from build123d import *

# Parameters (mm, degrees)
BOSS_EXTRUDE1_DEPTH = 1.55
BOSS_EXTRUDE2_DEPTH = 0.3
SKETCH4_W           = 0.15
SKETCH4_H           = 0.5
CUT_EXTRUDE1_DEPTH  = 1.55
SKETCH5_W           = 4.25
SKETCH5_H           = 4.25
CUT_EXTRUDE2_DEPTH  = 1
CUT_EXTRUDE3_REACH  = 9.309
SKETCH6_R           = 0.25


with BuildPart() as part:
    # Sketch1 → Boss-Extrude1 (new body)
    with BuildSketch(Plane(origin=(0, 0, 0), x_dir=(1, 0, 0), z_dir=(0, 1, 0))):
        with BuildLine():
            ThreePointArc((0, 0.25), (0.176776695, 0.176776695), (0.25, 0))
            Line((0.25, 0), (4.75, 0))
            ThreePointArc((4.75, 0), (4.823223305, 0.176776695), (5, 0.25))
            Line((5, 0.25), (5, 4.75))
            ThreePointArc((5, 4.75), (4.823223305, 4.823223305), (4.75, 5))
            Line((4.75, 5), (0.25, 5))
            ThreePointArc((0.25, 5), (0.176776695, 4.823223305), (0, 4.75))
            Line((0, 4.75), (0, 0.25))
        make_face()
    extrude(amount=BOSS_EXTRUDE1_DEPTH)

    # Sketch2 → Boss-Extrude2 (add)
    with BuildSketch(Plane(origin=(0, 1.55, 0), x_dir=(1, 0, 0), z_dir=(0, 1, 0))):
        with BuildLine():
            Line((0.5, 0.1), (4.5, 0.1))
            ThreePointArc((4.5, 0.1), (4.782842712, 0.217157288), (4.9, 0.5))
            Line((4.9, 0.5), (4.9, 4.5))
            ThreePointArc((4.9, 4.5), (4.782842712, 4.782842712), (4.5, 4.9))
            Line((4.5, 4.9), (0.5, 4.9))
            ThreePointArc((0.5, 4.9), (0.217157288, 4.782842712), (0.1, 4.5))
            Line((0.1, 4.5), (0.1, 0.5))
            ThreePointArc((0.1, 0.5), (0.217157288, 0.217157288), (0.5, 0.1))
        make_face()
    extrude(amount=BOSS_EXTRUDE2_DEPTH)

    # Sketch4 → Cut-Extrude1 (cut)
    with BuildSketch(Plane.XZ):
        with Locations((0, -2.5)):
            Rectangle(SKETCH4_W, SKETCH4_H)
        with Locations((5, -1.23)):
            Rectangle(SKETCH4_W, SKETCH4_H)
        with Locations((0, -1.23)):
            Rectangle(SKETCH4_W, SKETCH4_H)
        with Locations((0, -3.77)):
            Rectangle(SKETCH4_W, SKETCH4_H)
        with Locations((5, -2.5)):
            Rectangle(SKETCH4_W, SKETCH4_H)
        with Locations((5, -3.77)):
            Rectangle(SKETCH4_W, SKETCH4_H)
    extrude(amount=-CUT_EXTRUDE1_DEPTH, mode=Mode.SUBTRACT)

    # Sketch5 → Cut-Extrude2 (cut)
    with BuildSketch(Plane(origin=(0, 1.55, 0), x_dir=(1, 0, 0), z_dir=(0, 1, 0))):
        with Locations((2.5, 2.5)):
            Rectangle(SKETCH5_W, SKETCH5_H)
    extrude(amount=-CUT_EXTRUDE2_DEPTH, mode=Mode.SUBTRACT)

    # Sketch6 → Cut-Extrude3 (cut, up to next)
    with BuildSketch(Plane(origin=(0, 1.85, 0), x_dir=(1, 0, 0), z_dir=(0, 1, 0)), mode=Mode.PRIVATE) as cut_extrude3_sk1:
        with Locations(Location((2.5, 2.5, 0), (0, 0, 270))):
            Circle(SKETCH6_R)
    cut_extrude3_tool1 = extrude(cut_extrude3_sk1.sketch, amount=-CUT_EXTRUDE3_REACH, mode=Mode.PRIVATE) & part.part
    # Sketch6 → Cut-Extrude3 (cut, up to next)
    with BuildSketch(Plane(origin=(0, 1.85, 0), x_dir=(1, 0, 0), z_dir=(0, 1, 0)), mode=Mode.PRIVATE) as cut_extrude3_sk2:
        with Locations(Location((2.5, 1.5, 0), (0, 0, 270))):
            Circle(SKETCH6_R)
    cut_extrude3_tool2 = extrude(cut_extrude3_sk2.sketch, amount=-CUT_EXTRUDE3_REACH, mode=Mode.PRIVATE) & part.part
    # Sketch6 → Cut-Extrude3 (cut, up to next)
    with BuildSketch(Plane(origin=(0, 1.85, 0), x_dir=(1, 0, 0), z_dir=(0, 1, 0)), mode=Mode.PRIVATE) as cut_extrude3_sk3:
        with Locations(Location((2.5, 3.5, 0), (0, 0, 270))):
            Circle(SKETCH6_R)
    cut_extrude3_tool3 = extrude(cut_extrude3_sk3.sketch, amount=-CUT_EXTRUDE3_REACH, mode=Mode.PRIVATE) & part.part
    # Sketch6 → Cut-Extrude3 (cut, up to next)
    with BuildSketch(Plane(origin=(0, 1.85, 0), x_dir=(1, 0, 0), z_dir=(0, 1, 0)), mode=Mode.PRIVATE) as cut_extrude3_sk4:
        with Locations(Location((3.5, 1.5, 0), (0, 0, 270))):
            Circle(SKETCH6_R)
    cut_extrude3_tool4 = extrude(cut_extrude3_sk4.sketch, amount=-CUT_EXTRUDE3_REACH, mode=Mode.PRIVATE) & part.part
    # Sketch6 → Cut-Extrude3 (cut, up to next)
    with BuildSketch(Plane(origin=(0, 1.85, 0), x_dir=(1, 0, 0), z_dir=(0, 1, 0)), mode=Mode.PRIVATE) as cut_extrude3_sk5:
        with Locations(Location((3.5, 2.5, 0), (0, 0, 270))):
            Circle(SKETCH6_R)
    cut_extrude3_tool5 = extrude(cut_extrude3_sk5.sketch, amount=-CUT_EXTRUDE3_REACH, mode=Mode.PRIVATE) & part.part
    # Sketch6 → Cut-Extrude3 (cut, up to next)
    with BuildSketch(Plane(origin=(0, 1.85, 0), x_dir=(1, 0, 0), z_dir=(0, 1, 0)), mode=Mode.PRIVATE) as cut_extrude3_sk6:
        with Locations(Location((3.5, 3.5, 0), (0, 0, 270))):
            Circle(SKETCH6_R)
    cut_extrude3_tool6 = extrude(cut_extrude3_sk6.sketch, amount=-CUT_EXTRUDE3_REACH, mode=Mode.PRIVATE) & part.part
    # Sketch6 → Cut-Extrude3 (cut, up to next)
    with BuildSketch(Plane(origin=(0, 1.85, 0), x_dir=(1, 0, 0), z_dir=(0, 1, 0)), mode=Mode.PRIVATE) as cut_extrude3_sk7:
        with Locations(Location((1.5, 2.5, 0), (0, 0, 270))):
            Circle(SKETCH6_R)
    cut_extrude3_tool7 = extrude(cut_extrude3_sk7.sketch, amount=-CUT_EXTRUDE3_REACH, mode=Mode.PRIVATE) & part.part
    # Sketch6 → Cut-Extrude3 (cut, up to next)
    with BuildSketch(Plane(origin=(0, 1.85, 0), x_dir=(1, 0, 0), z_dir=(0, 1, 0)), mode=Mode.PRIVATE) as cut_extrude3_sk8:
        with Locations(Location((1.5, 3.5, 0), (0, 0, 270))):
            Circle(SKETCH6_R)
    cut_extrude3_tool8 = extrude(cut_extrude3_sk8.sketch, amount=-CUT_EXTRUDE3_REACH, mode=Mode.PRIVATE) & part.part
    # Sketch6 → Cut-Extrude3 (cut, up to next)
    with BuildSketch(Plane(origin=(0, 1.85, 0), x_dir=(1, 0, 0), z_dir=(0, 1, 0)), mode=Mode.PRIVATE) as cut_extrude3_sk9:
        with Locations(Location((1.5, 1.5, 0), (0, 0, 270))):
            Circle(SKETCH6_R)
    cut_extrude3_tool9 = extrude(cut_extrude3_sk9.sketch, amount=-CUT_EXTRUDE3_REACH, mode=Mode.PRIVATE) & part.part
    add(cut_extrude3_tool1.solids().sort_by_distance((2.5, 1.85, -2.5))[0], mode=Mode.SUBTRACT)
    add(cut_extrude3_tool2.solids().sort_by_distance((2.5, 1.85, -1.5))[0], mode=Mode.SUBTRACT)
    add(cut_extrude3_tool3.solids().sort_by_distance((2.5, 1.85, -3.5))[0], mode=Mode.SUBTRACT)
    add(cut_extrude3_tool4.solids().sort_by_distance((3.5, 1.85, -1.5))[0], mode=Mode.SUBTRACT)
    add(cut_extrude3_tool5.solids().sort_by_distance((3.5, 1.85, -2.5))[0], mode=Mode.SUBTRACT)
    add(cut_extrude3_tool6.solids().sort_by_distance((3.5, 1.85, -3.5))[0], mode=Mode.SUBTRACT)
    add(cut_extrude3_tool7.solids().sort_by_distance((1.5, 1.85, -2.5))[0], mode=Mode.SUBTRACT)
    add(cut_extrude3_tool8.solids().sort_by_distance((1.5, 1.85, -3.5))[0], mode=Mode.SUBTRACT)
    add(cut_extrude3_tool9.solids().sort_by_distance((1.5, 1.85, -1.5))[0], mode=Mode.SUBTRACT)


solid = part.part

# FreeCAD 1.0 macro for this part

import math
import FreeCAD as App
import Part
import Sketcher
Q = App.Units.Quantity

doc = App.newDocument("Part")
body = doc.addObject("PartDesign::Body", "Body")

sketch1 = doc.addObject("Sketcher::SketchObject", "Sketch")
body.addObject(sketch1)
sketch1.AttachmentSupport = (doc.XZ_Plane, [""])
sketch1.MapMode = "FlatFace"
sketch1.addGeometry([
    Part.ArcOfCircle(Part.Circle(App.Vector(0, 0, 0), App.Vector(0, 0, 1), 0.25), math.radians(-90), math.radians(0)),
    Part.LineSegment(App.Vector(0.25, 0, 0), App.Vector(4.75, 0, 0)),
    Part.ArcOfCircle(Part.Circle(App.Vector(5, 0, 0), App.Vector(0, 0, 1), 0.25), math.radians(-180), math.radians(-90)),
    Part.LineSegment(App.Vector(5, -0.25, 0), App.Vector(5, -4.75, 0)),
    Part.ArcOfCircle(Part.Circle(App.Vector(5, -5, 0), App.Vector(0, 0, 1), 0.25), math.radians(90), math.radians(180)),
    Part.LineSegment(App.Vector(4.75, -5, 0), App.Vector(0.25, -5, 0)),
    Part.ArcOfCircle(Part.Circle(App.Vector(0, -5, 0), App.Vector(0, 0, 1), 0.25), math.radians(0), math.radians(90)),
    Part.LineSegment(App.Vector(0, -4.75, 0), App.Vector(0, -0.25, 0)),
], False)
sketch1.addConstraint([
    Sketcher.Constraint("Coincident", 0, 2, 1, 1),
    Sketcher.Constraint("Coincident", 1, 2, 2, 1),
    Sketcher.Constraint("Coincident", 2, 2, 3, 1),
    Sketcher.Constraint("Coincident", 3, 2, 4, 1),
    Sketcher.Constraint("Coincident", 4, 2, 5, 1),
    Sketcher.Constraint("Coincident", 5, 2, 6, 1),
    Sketcher.Constraint("Coincident", 6, 2, 7, 1),
    Sketcher.Constraint("Coincident", 7, 2, 0, 1),
    Sketcher.Constraint("Horizontal", 1),
    Sketcher.Constraint("Vertical", 3),
    Sketcher.Constraint("Horizontal", 5),
    Sketcher.Constraint("Vertical", 7),
    Sketcher.Constraint("Coincident", 0, 3, -1, 1),
    Sketcher.Constraint("Equal", 0, 2),
    Sketcher.Constraint("Equal", 2, 4),
    Sketcher.Constraint("Equal", 4, 6),
    Sketcher.Constraint("PointOnObject", 2, 3, -1),
    Sketcher.Constraint("PointOnObject", 6, 3, -2),
    Sketcher.Constraint("PointOnObject", 0, 2, -1),
    Sketcher.Constraint("PointOnObject", 6, 2, -2),
    Sketcher.Constraint("Horizontal", 4, 3, 6, 3),
    Sketcher.Constraint("Horizontal", 6, 3, 4, 2),
    Sketcher.Constraint("Vertical", 2, 3, 4, 3),
    Sketcher.Constraint("Vertical", 4, 3, 2, 2),
    Sketcher.Constraint("Equal", 5, 3),
    Sketcher.Constraint("Radius", 0, Q("0.25 mm")),
    Sketcher.Constraint("DistanceX", 1, 1, 1, 2, Q("4.5 mm")),
])
pad1 = doc.addObject("PartDesign::Pad", "Pad")
body.addObject(pad1)
pad1.Profile = sketch1
pad1.Length = 1.55
pad1.Reversed = True

sketch2 = doc.addObject("Sketcher::SketchObject", "Sketch001")
body.addObject(sketch2)
sketch2.AttachmentSupport = (doc.XZ_Plane, [""])
sketch2.MapMode = "FlatFace"
sketch2.AttachmentOffset = App.Placement(App.Vector(0, 0, -1.55), App.Rotation())
sketch2.addGeometry([
    Part.LineSegment(App.Vector(0.5, -0.1, 0), App.Vector(4.5, -0.1, 0)),
    Part.ArcOfCircle(Part.Circle(App.Vector(4.5, -0.5, 0), App.Vector(0, 0, 1), 0.4), math.radians(0), math.radians(90)),
    Part.LineSegment(App.Vector(4.9, -0.5, 0), App.Vector(4.9, -4.5, 0)),
    Part.ArcOfCircle(Part.Circle(App.Vector(4.5, -4.5, 0), App.Vector(0, 0, 1), 0.4), math.radians(-90), math.radians(0)),
    Part.LineSegment(App.Vector(4.5, -4.9, 0), App.Vector(0.5, -4.9, 0)),
    Part.ArcOfCircle(Part.Circle(App.Vector(0.5, -4.5, 0), App.Vector(0, 0, 1), 0.4), math.radians(-180), math.radians(-90)),
    Part.LineSegment(App.Vector(0.1, -4.5, 0), App.Vector(0.1, -0.5, 0)),
    Part.ArcOfCircle(Part.Circle(App.Vector(0.5, -0.5, 0), App.Vector(0, 0, 1), 0.4), math.radians(90), math.radians(180)),
], False)
sketch2.addConstraint([
    Sketcher.Constraint("Tangent", 0, 2, 1, 2),
    Sketcher.Constraint("Tangent", 1, 1, 2, 1),
    Sketcher.Constraint("Tangent", 2, 2, 3, 2),
    Sketcher.Constraint("Tangent", 3, 1, 4, 1),
    Sketcher.Constraint("Tangent", 4, 2, 5, 2),
    Sketcher.Constraint("Tangent", 5, 1, 6, 1),
    Sketcher.Constraint("Tangent", 6, 2, 7, 2),
    Sketcher.Constraint("Tangent", 7, 1, 0, 1),
    Sketcher.Constraint("Horizontal", 0),
    Sketcher.Constraint("Vertical", 2),
    Sketcher.Constraint("Horizontal", 4),
    Sketcher.Constraint("Vertical", 6),
    Sketcher.Constraint("Equal", 1, 3),
    Sketcher.Constraint("Equal", 3, 5),
    Sketcher.Constraint("Equal", 5, 7),
    Sketcher.Constraint("Equal", 4, 2),
    Sketcher.Constraint("Radius", 1, Q("0.4 mm")),
    Sketcher.Constraint("DistanceX", 0, 1, 0, 2, Q("4 mm")),
    Sketcher.Constraint("DistanceX", -1, 1, 1, 3, Q("4.5 mm")),
    Sketcher.Constraint("DistanceY", 1, 3, -1, 1, Q("0.5 mm")),
])
pad2 = doc.addObject("PartDesign::Pad", "Pad001")
body.addObject(pad2)
pad2.Profile = sketch2
pad2.Length = 0.3
pad2.Reversed = True

sketch3 = doc.addObject("Sketcher::SketchObject", "Sketch002")
body.addObject(sketch3)
sketch3.AttachmentSupport = (doc.XZ_Plane, [""])
sketch3.MapMode = "FlatFace"
sketch3.addGeometry([
    Part.LineSegment(App.Vector(-0.075, -2.25, 0), App.Vector(-0.075, -2.75, 0)),
    Part.LineSegment(App.Vector(-0.075, -2.75, 0), App.Vector(0.075, -2.75, 0)),
    Part.LineSegment(App.Vector(0.075, -2.75, 0), App.Vector(0.075, -2.25, 0)),
    Part.LineSegment(App.Vector(0.075, -2.25, 0), App.Vector(-0.075, -2.25, 0)),
    Part.LineSegment(App.Vector(4.925, -0.98, 0), App.Vector(4.925, -1.48, 0)),
    Part.LineSegment(App.Vector(4.925, -1.48, 0), App.Vector(5.075, -1.48, 0)),
    Part.LineSegment(App.Vector(5.075, -1.48, 0), App.Vector(5.075, -0.98, 0)),
    Part.LineSegment(App.Vector(5.075, -0.98, 0), App.Vector(4.925, -0.98, 0)),
    Part.LineSegment(App.Vector(-0.075, -0.98, 0), App.Vector(-0.075, -1.48, 0)),
    Part.LineSegment(App.Vector(-0.075, -1.48, 0), App.Vector(0.075, -1.48, 0)),
    Part.LineSegment(App.Vector(0.075, -1.48, 0), App.Vector(0.075, -0.98, 0)),
    Part.LineSegment(App.Vector(0.075, -0.98, 0), App.Vector(-0.075, -0.98, 0)),
    Part.LineSegment(App.Vector(-0.075, -3.52, 0), App.Vector(-0.075, -4.02, 0)),
    Part.LineSegment(App.Vector(-0.075, -4.02, 0), App.Vector(0.075, -4.02, 0)),
    Part.LineSegment(App.Vector(0.075, -4.02, 0), App.Vector(0.075, -3.52, 0)),
    Part.LineSegment(App.Vector(0.075, -3.52, 0), App.Vector(-0.075, -3.52, 0)),
    Part.LineSegment(App.Vector(4.925, -2.25, 0), App.Vector(4.925, -2.75, 0)),
    Part.LineSegment(App.Vector(4.925, -2.75, 0), App.Vector(5.075, -2.75, 0)),
    Part.LineSegment(App.Vector(5.075, -2.75, 0), App.Vector(5.075, -2.25, 0)),
    Part.LineSegment(App.Vector(5.075, -2.25, 0), App.Vector(4.925, -2.25, 0)),
    Part.LineSegment(App.Vector(4.925, -3.52, 0), App.Vector(4.925, -4.02, 0)),
    Part.LineSegment(App.Vector(4.925, -4.02, 0), App.Vector(5.075, -4.02, 0)),
    Part.LineSegment(App.Vector(5.075, -4.02, 0), App.Vector(5.075, -3.52, 0)),
    Part.LineSegment(App.Vector(5.075, -3.52, 0), App.Vector(4.925, -3.52, 0)),
], False)
sketch3.addConstraint([
    Sketcher.Constraint("Coincident", 0, 2, 1, 1),
    Sketcher.Constraint("Coincident", 1, 2, 2, 1),
    Sketcher.Constraint("Coincident", 2, 2, 3, 1),
    Sketcher.Constraint("Coincident", 3, 2, 0, 1),
    Sketcher.Constraint("Coincident", 4, 2, 5, 1),
    Sketcher.Constraint("Coincident", 5, 2, 6, 1),
    Sketcher.Constraint("Coincident", 6, 2, 7, 1),
    Sketcher.Constraint("Coincident", 7, 2, 4, 1),
    Sketcher.Constraint("Coincident", 8, 2, 9, 1),
    Sketcher.Constraint("Coincident", 9, 2, 10, 1),
    Sketcher.Constraint("Coincident", 10, 2, 11, 1),
    Sketcher.Constraint("Coincident", 11, 2, 8, 1),
    Sketcher.Constraint("Coincident", 12, 2, 13, 1),
    Sketcher.Constraint("Coincident", 13, 2, 14, 1),
    Sketcher.Constraint("Coincident", 14, 2, 15, 1),
    Sketcher.Constraint("Coincident", 15, 2, 12, 1),
    Sketcher.Constraint("Coincident", 16, 2, 17, 1),
    Sketcher.Constraint("Coincident", 17, 2, 18, 1),
    Sketcher.Constraint("Coincident", 18, 2, 19, 1),
    Sketcher.Constraint("Coincident", 19, 2, 16, 1),
    Sketcher.Constraint("Coincident", 20, 2, 21, 1),
    Sketcher.Constraint("Coincident", 21, 2, 22, 1),
    Sketcher.Constraint("Coincident", 22, 2, 23, 1),
    Sketcher.Constraint("Coincident", 23, 2, 20, 1),
    Sketcher.Constraint("Vertical", 0),
    Sketcher.Constraint("Horizontal", 1),
    Sketcher.Constraint("Vertical", 2),
    Sketcher.Constraint("Horizontal", 3),
    Sketcher.Constraint("Vertical", 4),
    Sketcher.Constraint("Horizontal", 5),
    Sketcher.Constraint("Vertical", 6),
    Sketcher.Constraint("Horizontal", 7),
    Sketcher.Constraint("Vertical", 8),
    Sketcher.Constraint("Horizontal", 9),
    Sketcher.Constraint("Vertical", 10),
    Sketcher.Constraint("Horizontal", 11),
    Sketcher.Constraint("Vertical", 12),
    Sketcher.Constraint("Horizontal", 13),
    Sketcher.Constraint("Vertical", 14),
    Sketcher.Constraint("Horizontal", 15),
    Sketcher.Constraint("Vertical", 16),
    Sketcher.Constraint("Horizontal", 17),
    Sketcher.Constraint("Vertical", 18),
    Sketcher.Constraint("Horizontal", 19),
    Sketcher.Constraint("Vertical", 20),
    Sketcher.Constraint("Horizontal", 21),
    Sketcher.Constraint("Vertical", 22),
    Sketcher.Constraint("Horizontal", 23),
    Sketcher.Constraint("Horizontal", 5, 2, 8, 2),
    Sketcher.Constraint("Horizontal", 7, 2, 10, 2),
    Sketcher.Constraint("Horizontal", 1, 2, 16, 2),
    Sketcher.Constraint("Horizontal", 3, 2, 18, 2),
    Sketcher.Constraint("Horizontal", 13, 2, 20, 2),
    Sketcher.Constraint("Horizontal", 15, 2, 22, 2),
    Sketcher.Constraint("Vertical", 3, 2, 8, 2),
    Sketcher.Constraint("Vertical", 2, 2, 9, 2),
    Sketcher.Constraint("Vertical", 11, 2, 12, 2),
    Sketcher.Constraint("Vertical", 10, 2, 13, 2),
    Sketcher.Constraint("Vertical", 7, 2, 16, 2),
    Sketcher.Constraint("Vertical", 6, 2, 17, 2),
    Sketcher.Constraint("Vertical", 19, 2, 20, 2),
    Sketcher.Constraint("Vertical", 18, 2, 21, 2),
    Sketcher.Constraint("Equal", 3, 5),
    Sketcher.Constraint("Equal", 2, 4),
    Sketcher.Constraint("Equal", 10, 12),
    Sketcher.Constraint("DistanceY", 0, 2, 0, 1, Q("0.5 mm")),
    Sketcher.Constraint("DistanceX", 3, 2, 4, 2, Q("5 mm")),
    Sketcher.Constraint("DistanceX", 1, 1, 1, 2, Q("0.15 mm")),
    Sketcher.Constraint("DistanceY", 0, 2, -1, 1, Q("2.75 mm")),
    Sketcher.Constraint("DistanceY", 4, 2, -1, 1, Q("1.48 mm")),
    Sketcher.Constraint("DistanceY", 12, 2, -1, 1, Q("4.02 mm")),
    Sketcher.Constraint("DistanceX", 0, 2, -1, 1, Q("0.075 mm")),
])
pocket1 = doc.addObject("PartDesign::Pocket", "Pocket")
body.addObject(pocket1)
pocket1.Profile = sketch3
pocket1.Length = 1.55

sketch4 = doc.addObject("Sketcher::SketchObject", "Sketch003")
body.addObject(sketch4)
sketch4.AttachmentSupport = (doc.XZ_Plane, [""])
sketch4.MapMode = "FlatFace"
sketch4.AttachmentOffset = App.Placement(App.Vector(0, 0, -1.55), App.Rotation())
sketch4.addGeometry([
    Part.LineSegment(App.Vector(0.375, -4.625, 0), App.Vector(0.375, -0.375, 0)),
    Part.LineSegment(App.Vector(0.375, -0.375, 0), App.Vector(4.625, -0.375, 0)),
    Part.LineSegment(App.Vector(4.625, -0.375, 0), App.Vector(4.625, -4.625, 0)),
    Part.LineSegment(App.Vector(4.625, -4.625, 0), App.Vector(0.375, -4.625, 0)),
], False)
sketch4.addConstraint([
    Sketcher.Constraint("Coincident", 0, 2, 1, 1),
    Sketcher.Constraint("Coincident", 1, 2, 2, 1),
    Sketcher.Constraint("Coincident", 2, 2, 3, 1),
    Sketcher.Constraint("Coincident", 3, 2, 0, 1),
    Sketcher.Constraint("Vertical", 0),
    Sketcher.Constraint("Horizontal", 1),
    Sketcher.Constraint("Vertical", 2),
    Sketcher.Constraint("Horizontal", 3),
    Sketcher.Constraint("Equal", 3, 0),
    Sketcher.Constraint("DistanceX", 1, 1, 1, 2, Q("4.25 mm")),
    Sketcher.Constraint("DistanceX", -1, 1, 0, 2, Q("0.375 mm")),
    Sketcher.Constraint("DistanceY", 0, 2, -1, 1, Q("0.375 mm")),
])
pocket2 = doc.addObject("PartDesign::Pocket", "Pocket001")
body.addObject(pocket2)
pocket2.Profile = sketch4
pocket2.Length = 1
pocket2.Reversed = True

sketch5 = doc.addObject("Sketcher::SketchObject", "Sketch004")
body.addObject(sketch5)
sketch5.AttachmentSupport = (doc.XZ_Plane, [""])
sketch5.MapMode = "FlatFace"
sketch5.AttachmentOffset = App.Placement(App.Vector(0, 0, -1.85), App.Rotation())
sketch5.addGeometry(Part.Circle(App.Vector(2.5, -2.5, 0), App.Vector(0, 0, 1), 0.25), False)
sketch5.addConstraint([
    Sketcher.Constraint("Diameter", 0, Q("0.5 mm")),
    Sketcher.Constraint("DistanceX", -1, 1, 0, 3, Q("2.5 mm")),
    Sketcher.Constraint("DistanceY", 0, 3, -1, 1, Q("2.5 mm")),
])
pocket3 = doc.addObject("PartDesign::Pocket", "Pocket002")
body.addObject(pocket3)
pocket3.Profile = sketch5
pocket3.Type = "UpToFirst"
pocket3.Reversed = True

sketch6 = doc.addObject("Sketcher::SketchObject", "Sketch005")
body.addObject(sketch6)
sketch6.AttachmentSupport = (doc.XZ_Plane, [""])
sketch6.MapMode = "FlatFace"
sketch6.AttachmentOffset = App.Placement(App.Vector(0, 0, -1.85), App.Rotation())
sketch6.addGeometry(Part.Circle(App.Vector(2.5, -1.5, 0), App.Vector(0, 0, 1), 0.25), False)
sketch6.addConstraint([
    Sketcher.Constraint("Diameter", 0, Q("0.5 mm")),
    Sketcher.Constraint("DistanceX", -1, 1, 0, 3, Q("2.5 mm")),
    Sketcher.Constraint("DistanceY", 0, 3, -1, 1, Q("1.5 mm")),
])
pocket4 = doc.addObject("PartDesign::Pocket", "Pocket003")
body.addObject(pocket4)
pocket4.Profile = sketch6
pocket4.Type = "UpToFirst"
pocket4.Reversed = True

sketch7 = doc.addObject("Sketcher::SketchObject", "Sketch006")
body.addObject(sketch7)
sketch7.AttachmentSupport = (doc.XZ_Plane, [""])
sketch7.MapMode = "FlatFace"
sketch7.AttachmentOffset = App.Placement(App.Vector(0, 0, -1.85), App.Rotation())
sketch7.addGeometry(Part.Circle(App.Vector(2.5, -3.5, 0), App.Vector(0, 0, 1), 0.25), False)
sketch7.addConstraint([
    Sketcher.Constraint("Diameter", 0, Q("0.5 mm")),
    Sketcher.Constraint("DistanceX", -1, 1, 0, 3, Q("2.5 mm")),
    Sketcher.Constraint("DistanceY", 0, 3, -1, 1, Q("3.5 mm")),
])
pocket5 = doc.addObject("PartDesign::Pocket", "Pocket004")
body.addObject(pocket5)
pocket5.Profile = sketch7
pocket5.Type = "UpToFirst"
pocket5.Reversed = True

sketch8 = doc.addObject("Sketcher::SketchObject", "Sketch007")
body.addObject(sketch8)
sketch8.AttachmentSupport = (doc.XZ_Plane, [""])
sketch8.MapMode = "FlatFace"
sketch8.AttachmentOffset = App.Placement(App.Vector(0, 0, -1.85), App.Rotation())
sketch8.addGeometry(Part.Circle(App.Vector(3.5, -1.5, 0), App.Vector(0, 0, 1), 0.25), False)
sketch8.addConstraint([
    Sketcher.Constraint("Diameter", 0, Q("0.5 mm")),
    Sketcher.Constraint("DistanceX", -1, 1, 0, 3, Q("3.5 mm")),
    Sketcher.Constraint("DistanceY", 0, 3, -1, 1, Q("1.5 mm")),
])
pocket6 = doc.addObject("PartDesign::Pocket", "Pocket005")
body.addObject(pocket6)
pocket6.Profile = sketch8
pocket6.Type = "UpToFirst"
pocket6.Reversed = True

sketch9 = doc.addObject("Sketcher::SketchObject", "Sketch008")
body.addObject(sketch9)
sketch9.AttachmentSupport = (doc.XZ_Plane, [""])
sketch9.MapMode = "FlatFace"
sketch9.AttachmentOffset = App.Placement(App.Vector(0, 0, -1.85), App.Rotation())
sketch9.addGeometry(Part.Circle(App.Vector(3.5, -2.5, 0), App.Vector(0, 0, 1), 0.25), False)
sketch9.addConstraint([
    Sketcher.Constraint("Diameter", 0, Q("0.5 mm")),
    Sketcher.Constraint("DistanceX", -1, 1, 0, 3, Q("3.5 mm")),
    Sketcher.Constraint("DistanceY", 0, 3, -1, 1, Q("2.5 mm")),
])
pocket7 = doc.addObject("PartDesign::Pocket", "Pocket006")
body.addObject(pocket7)
pocket7.Profile = sketch9
pocket7.Type = "UpToFirst"
pocket7.Reversed = True

sketch10 = doc.addObject("Sketcher::SketchObject", "Sketch009")
body.addObject(sketch10)
sketch10.AttachmentSupport = (doc.XZ_Plane, [""])
sketch10.MapMode = "FlatFace"
sketch10.AttachmentOffset = App.Placement(App.Vector(0, 0, -1.85), App.Rotation())
sketch10.addGeometry(Part.Circle(App.Vector(3.5, -3.5, 0), App.Vector(0, 0, 1), 0.25), False)
sketch10.addConstraint([
    Sketcher.Constraint("Diameter", 0, Q("0.5 mm")),
    Sketcher.Constraint("DistanceX", -1, 1, 0, 3, Q("3.5 mm")),
    Sketcher.Constraint("DistanceY", 0, 3, -1, 1, Q("3.5 mm")),
])
pocket8 = doc.addObject("PartDesign::Pocket", "Pocket007")
body.addObject(pocket8)
pocket8.Profile = sketch10
pocket8.Type = "UpToFirst"
pocket8.Reversed = True

sketch11 = doc.addObject("Sketcher::SketchObject", "Sketch010")
body.addObject(sketch11)
sketch11.AttachmentSupport = (doc.XZ_Plane, [""])
sketch11.MapMode = "FlatFace"
sketch11.AttachmentOffset = App.Placement(App.Vector(0, 0, -1.85), App.Rotation())
sketch11.addGeometry(Part.Circle(App.Vector(1.5, -2.5, 0), App.Vector(0, 0, 1), 0.25), False)
sketch11.addConstraint([
    Sketcher.Constraint("Diameter", 0, Q("0.5 mm")),
    Sketcher.Constraint("DistanceX", -1, 1, 0, 3, Q("1.5 mm")),
    Sketcher.Constraint("DistanceY", 0, 3, -1, 1, Q("2.5 mm")),
])
pocket9 = doc.addObject("PartDesign::Pocket", "Pocket008")
body.addObject(pocket9)
pocket9.Profile = sketch11
pocket9.Type = "UpToFirst"
pocket9.Reversed = True

sketch12 = doc.addObject("Sketcher::SketchObject", "Sketch011")
body.addObject(sketch12)
sketch12.AttachmentSupport = (doc.XZ_Plane, [""])
sketch12.MapMode = "FlatFace"
sketch12.AttachmentOffset = App.Placement(App.Vector(0, 0, -1.85), App.Rotation())
sketch12.addGeometry(Part.Circle(App.Vector(1.5, -3.5, 0), App.Vector(0, 0, 1), 0.25), False)
sketch12.addConstraint([
    Sketcher.Constraint("Diameter", 0, Q("0.5 mm")),
    Sketcher.Constraint("DistanceX", -1, 1, 0, 3, Q("1.5 mm")),
    Sketcher.Constraint("DistanceY", 0, 3, -1, 1, Q("3.5 mm")),
])
pocket10 = doc.addObject("PartDesign::Pocket", "Pocket009")
body.addObject(pocket10)
pocket10.Profile = sketch12
pocket10.Type = "UpToFirst"
pocket10.Reversed = True

sketch13 = doc.addObject("Sketcher::SketchObject", "Sketch012")
body.addObject(sketch13)
sketch13.AttachmentSupport = (doc.XZ_Plane, [""])
sketch13.MapMode = "FlatFace"
sketch13.AttachmentOffset = App.Placement(App.Vector(0, 0, -1.85), App.Rotation())
sketch13.addGeometry(Part.Circle(App.Vector(1.5, -1.5, 0), App.Vector(0, 0, 1), 0.25), False)
sketch13.addConstraint([
    Sketcher.Constraint("Diameter", 0, Q("0.5 mm")),
    Sketcher.Constraint("DistanceX", -1, 1, 0, 3, Q("1.5 mm")),
    Sketcher.Constraint("DistanceY", 0, 3, -1, 1, Q("1.5 mm")),
])
pocket11 = doc.addObject("PartDesign::Pocket", "Pocket010")
body.addObject(pocket11)
pocket11.Profile = sketch13
pocket11.Type = "UpToFirst"
pocket11.Reversed = True

doc.recompute()
